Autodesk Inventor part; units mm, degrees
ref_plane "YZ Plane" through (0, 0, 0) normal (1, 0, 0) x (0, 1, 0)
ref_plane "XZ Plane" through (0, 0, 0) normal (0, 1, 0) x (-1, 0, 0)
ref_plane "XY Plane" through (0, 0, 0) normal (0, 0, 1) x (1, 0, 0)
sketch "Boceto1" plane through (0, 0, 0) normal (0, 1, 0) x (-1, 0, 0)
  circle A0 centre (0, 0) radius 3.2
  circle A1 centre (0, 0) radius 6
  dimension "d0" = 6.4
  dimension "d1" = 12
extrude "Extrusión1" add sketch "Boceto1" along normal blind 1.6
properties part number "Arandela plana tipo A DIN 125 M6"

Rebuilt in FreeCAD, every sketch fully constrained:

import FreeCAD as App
import Part
import Sketcher

V = App.Vector
Q = App.Units.Quantity

doc = App.newDocument("Part")
body = doc.addObject("PartDesign::Body", "Body")

# Sketch on XZ plane
sketch1 = body.newObject("Sketcher::SketchObject", "Sketch")
sketch1.AttachmentSupport = (doc.getObject("XZ_Plane"), [""])
sketch1.MapMode = "FlatFace"
sketch1.addGeometry([
    Part.Circle(V(0, 0, 0), V(0, 0, 1), 6),
    Part.Circle(V(0, 0, 0), V(0, 0, 1), 3.2),
], False)
sketch1.addConstraint([
    Sketcher.Constraint("Coincident", 0, 3, -1, 1),
    Sketcher.Constraint("Coincident", 1, 3, -1, 1),
    Sketcher.Constraint("Diameter", 0, Q("12 mm")),
    Sketcher.Constraint("Diameter", 1, Q("6.4 mm")),
])
pad1 = body.newObject("PartDesign::Pad", "Pad")
pad1.Profile = sketch1
pad1.Length = 1.6
pad1.Reversed = True

doc.recompute()
